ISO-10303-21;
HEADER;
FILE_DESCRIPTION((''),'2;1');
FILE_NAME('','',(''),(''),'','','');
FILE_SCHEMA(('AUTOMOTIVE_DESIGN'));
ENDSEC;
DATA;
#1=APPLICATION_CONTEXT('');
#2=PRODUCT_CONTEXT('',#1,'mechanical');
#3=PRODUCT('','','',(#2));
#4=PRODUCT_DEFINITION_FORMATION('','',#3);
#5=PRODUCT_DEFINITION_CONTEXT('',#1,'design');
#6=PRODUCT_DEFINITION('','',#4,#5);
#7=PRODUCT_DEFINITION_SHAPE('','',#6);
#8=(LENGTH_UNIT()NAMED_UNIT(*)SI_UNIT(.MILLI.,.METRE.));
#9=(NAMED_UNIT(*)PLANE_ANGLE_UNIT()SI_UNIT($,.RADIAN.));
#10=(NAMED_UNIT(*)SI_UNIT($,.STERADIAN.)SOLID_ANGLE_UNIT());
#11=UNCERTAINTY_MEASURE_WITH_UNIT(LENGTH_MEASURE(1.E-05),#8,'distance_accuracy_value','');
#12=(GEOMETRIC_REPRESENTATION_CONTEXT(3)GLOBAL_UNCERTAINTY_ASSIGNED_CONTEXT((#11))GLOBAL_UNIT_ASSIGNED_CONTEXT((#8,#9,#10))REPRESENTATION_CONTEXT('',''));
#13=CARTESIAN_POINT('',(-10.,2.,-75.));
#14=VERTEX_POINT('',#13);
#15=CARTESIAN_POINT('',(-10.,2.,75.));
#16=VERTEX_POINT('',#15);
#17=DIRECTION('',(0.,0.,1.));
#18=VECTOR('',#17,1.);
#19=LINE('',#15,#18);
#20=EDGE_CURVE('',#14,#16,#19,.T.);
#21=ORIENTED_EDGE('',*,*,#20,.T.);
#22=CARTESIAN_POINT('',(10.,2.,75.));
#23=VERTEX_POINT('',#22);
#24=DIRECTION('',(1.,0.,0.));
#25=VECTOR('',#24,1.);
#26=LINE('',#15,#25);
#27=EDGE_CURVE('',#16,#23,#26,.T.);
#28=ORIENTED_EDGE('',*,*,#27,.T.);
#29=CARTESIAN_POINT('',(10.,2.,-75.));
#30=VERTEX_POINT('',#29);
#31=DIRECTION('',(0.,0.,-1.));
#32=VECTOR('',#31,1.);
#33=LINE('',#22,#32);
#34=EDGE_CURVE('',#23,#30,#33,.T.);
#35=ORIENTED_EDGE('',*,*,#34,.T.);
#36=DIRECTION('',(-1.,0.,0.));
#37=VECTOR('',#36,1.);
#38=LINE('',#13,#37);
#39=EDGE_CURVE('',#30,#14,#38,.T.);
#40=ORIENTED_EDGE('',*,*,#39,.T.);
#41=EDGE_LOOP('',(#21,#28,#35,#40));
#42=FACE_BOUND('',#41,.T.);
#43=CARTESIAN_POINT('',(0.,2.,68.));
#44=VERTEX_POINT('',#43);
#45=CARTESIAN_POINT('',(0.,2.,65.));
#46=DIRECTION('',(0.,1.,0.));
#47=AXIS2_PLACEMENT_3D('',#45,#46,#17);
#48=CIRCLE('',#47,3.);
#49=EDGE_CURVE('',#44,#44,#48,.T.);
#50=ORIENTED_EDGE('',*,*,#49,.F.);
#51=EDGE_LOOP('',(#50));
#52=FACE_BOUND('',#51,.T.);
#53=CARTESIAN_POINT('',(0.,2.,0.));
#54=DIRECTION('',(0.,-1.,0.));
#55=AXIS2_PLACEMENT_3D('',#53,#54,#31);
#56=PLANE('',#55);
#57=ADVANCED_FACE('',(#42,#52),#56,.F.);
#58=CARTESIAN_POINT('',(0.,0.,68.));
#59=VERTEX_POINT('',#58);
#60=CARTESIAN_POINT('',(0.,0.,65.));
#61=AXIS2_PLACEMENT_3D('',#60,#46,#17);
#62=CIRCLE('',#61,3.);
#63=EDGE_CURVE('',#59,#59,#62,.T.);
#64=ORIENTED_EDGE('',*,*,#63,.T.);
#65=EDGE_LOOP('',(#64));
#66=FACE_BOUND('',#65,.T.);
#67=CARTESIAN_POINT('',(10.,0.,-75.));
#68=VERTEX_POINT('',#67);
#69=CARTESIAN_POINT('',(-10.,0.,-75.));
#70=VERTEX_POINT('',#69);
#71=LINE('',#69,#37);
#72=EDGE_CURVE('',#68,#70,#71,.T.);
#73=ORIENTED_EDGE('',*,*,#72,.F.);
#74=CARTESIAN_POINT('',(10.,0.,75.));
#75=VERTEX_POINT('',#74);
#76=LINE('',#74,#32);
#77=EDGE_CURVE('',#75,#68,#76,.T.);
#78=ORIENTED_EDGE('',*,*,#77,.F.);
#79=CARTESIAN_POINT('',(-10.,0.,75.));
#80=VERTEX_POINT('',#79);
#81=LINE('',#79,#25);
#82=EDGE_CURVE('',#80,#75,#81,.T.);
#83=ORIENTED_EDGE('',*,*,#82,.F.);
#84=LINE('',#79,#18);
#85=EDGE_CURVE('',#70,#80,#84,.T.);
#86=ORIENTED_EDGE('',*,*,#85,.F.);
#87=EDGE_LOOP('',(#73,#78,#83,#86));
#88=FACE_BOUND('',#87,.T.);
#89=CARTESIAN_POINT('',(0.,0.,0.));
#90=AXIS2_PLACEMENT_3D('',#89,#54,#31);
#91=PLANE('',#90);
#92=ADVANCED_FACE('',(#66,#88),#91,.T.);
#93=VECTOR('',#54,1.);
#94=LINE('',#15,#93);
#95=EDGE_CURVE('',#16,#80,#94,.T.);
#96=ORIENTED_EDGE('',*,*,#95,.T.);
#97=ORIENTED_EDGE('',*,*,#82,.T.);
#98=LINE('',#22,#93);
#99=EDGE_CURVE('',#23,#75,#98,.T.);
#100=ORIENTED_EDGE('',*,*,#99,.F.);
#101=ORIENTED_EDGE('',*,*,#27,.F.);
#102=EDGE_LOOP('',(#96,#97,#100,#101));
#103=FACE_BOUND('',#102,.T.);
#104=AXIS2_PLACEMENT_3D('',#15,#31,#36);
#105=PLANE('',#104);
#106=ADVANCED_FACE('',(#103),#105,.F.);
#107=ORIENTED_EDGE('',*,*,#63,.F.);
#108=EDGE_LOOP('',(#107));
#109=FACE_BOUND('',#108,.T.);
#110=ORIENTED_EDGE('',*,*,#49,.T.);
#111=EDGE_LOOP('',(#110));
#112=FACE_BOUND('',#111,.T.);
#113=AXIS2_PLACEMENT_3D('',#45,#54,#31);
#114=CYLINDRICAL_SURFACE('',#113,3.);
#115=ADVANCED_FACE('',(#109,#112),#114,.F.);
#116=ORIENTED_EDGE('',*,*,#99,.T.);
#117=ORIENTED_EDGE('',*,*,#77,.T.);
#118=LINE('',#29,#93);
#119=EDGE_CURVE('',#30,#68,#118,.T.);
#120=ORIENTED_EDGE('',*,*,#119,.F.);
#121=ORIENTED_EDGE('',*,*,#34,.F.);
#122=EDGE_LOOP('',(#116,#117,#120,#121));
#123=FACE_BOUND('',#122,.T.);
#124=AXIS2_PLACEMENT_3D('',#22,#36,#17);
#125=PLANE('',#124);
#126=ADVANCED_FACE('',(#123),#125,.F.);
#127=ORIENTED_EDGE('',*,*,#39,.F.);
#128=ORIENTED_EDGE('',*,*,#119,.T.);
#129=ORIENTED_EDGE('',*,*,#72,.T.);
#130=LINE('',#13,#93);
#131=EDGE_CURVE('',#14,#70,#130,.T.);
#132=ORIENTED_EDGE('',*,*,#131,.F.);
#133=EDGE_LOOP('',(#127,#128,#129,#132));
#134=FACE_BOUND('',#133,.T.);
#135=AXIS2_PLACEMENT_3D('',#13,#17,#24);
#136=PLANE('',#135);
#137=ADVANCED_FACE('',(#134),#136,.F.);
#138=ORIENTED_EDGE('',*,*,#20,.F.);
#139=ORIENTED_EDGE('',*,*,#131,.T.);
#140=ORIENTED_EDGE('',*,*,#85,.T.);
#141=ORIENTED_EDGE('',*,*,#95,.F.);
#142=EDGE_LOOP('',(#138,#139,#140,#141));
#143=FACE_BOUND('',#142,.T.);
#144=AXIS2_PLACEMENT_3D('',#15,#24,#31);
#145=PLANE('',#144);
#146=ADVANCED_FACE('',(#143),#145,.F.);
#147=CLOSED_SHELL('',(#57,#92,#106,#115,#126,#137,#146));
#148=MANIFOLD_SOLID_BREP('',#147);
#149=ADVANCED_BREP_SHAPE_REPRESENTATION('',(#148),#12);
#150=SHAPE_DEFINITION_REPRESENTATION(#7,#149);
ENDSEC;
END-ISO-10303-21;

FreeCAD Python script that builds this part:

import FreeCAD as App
import Part
import Sketcher


def add_polygon(sketch, points):
    """Adds a closed chain of lines whose ends are joined by coincident constraints."""
    first, n = sketch.GeometryCount, len(points)
    for a, b in zip(points, points[1:] + points[:1]):
        sketch.addGeometry(Part.LineSegment(App.Vector(*a, 0), App.Vector(*b, 0)), False)
    for i in range(n):
        sketch.addConstraint(Sketcher.Constraint("Coincident", first + i, 2, first + (i + 1) % n, 1))

doc = App.newDocument("Part")
body = doc.addObject("PartDesign::Body", "Body")

# Sketch on XZ plane
sketch1 = doc.addObject("Sketcher::SketchObject", "Sketch")
body.addObject(sketch1)
sketch1.AttachmentSupport = (doc.XZ_Plane, [""])
sketch1.MapMode = "FlatFace"
add_polygon(sketch1, [(-10, -75), (-10, 75), (10, 75), (10, -75)])  # lines 0-3
sketch1.addGeometry(Part.Circle(App.Vector(0, 65, 0), App.Vector(0, 0, 1), 3), False)  # 4
sketch1.addConstraint([
    Sketcher.Constraint("Vertical", 0),
    Sketcher.Constraint("Horizontal", 1),
    Sketcher.Constraint("Vertical", 2),
    Sketcher.Constraint("Horizontal", 3),
    Sketcher.Constraint("Symmetric", 0, 2, 2, 2, -1, 1),
    Sketcher.Constraint("PointOnObject", 4, 3, -2),
    Sketcher.Constraint("Diameter", 4, 6.0),
    Sketcher.Constraint("DistanceX", 1, 1, 1, 2, 20.0),
    Sketcher.Constraint("DistanceY", 0, 1, 0, 2, 150.0),
    Sketcher.Constraint("DistanceY", -1, 1, 4, 3, 65.0),
])
pad1 = doc.addObject("PartDesign::Pad", "Pad")
body.addObject(pad1)
pad1.Profile = sketch1
pad1.Length = 2
pad1.Reversed = True

doc.recompute()
